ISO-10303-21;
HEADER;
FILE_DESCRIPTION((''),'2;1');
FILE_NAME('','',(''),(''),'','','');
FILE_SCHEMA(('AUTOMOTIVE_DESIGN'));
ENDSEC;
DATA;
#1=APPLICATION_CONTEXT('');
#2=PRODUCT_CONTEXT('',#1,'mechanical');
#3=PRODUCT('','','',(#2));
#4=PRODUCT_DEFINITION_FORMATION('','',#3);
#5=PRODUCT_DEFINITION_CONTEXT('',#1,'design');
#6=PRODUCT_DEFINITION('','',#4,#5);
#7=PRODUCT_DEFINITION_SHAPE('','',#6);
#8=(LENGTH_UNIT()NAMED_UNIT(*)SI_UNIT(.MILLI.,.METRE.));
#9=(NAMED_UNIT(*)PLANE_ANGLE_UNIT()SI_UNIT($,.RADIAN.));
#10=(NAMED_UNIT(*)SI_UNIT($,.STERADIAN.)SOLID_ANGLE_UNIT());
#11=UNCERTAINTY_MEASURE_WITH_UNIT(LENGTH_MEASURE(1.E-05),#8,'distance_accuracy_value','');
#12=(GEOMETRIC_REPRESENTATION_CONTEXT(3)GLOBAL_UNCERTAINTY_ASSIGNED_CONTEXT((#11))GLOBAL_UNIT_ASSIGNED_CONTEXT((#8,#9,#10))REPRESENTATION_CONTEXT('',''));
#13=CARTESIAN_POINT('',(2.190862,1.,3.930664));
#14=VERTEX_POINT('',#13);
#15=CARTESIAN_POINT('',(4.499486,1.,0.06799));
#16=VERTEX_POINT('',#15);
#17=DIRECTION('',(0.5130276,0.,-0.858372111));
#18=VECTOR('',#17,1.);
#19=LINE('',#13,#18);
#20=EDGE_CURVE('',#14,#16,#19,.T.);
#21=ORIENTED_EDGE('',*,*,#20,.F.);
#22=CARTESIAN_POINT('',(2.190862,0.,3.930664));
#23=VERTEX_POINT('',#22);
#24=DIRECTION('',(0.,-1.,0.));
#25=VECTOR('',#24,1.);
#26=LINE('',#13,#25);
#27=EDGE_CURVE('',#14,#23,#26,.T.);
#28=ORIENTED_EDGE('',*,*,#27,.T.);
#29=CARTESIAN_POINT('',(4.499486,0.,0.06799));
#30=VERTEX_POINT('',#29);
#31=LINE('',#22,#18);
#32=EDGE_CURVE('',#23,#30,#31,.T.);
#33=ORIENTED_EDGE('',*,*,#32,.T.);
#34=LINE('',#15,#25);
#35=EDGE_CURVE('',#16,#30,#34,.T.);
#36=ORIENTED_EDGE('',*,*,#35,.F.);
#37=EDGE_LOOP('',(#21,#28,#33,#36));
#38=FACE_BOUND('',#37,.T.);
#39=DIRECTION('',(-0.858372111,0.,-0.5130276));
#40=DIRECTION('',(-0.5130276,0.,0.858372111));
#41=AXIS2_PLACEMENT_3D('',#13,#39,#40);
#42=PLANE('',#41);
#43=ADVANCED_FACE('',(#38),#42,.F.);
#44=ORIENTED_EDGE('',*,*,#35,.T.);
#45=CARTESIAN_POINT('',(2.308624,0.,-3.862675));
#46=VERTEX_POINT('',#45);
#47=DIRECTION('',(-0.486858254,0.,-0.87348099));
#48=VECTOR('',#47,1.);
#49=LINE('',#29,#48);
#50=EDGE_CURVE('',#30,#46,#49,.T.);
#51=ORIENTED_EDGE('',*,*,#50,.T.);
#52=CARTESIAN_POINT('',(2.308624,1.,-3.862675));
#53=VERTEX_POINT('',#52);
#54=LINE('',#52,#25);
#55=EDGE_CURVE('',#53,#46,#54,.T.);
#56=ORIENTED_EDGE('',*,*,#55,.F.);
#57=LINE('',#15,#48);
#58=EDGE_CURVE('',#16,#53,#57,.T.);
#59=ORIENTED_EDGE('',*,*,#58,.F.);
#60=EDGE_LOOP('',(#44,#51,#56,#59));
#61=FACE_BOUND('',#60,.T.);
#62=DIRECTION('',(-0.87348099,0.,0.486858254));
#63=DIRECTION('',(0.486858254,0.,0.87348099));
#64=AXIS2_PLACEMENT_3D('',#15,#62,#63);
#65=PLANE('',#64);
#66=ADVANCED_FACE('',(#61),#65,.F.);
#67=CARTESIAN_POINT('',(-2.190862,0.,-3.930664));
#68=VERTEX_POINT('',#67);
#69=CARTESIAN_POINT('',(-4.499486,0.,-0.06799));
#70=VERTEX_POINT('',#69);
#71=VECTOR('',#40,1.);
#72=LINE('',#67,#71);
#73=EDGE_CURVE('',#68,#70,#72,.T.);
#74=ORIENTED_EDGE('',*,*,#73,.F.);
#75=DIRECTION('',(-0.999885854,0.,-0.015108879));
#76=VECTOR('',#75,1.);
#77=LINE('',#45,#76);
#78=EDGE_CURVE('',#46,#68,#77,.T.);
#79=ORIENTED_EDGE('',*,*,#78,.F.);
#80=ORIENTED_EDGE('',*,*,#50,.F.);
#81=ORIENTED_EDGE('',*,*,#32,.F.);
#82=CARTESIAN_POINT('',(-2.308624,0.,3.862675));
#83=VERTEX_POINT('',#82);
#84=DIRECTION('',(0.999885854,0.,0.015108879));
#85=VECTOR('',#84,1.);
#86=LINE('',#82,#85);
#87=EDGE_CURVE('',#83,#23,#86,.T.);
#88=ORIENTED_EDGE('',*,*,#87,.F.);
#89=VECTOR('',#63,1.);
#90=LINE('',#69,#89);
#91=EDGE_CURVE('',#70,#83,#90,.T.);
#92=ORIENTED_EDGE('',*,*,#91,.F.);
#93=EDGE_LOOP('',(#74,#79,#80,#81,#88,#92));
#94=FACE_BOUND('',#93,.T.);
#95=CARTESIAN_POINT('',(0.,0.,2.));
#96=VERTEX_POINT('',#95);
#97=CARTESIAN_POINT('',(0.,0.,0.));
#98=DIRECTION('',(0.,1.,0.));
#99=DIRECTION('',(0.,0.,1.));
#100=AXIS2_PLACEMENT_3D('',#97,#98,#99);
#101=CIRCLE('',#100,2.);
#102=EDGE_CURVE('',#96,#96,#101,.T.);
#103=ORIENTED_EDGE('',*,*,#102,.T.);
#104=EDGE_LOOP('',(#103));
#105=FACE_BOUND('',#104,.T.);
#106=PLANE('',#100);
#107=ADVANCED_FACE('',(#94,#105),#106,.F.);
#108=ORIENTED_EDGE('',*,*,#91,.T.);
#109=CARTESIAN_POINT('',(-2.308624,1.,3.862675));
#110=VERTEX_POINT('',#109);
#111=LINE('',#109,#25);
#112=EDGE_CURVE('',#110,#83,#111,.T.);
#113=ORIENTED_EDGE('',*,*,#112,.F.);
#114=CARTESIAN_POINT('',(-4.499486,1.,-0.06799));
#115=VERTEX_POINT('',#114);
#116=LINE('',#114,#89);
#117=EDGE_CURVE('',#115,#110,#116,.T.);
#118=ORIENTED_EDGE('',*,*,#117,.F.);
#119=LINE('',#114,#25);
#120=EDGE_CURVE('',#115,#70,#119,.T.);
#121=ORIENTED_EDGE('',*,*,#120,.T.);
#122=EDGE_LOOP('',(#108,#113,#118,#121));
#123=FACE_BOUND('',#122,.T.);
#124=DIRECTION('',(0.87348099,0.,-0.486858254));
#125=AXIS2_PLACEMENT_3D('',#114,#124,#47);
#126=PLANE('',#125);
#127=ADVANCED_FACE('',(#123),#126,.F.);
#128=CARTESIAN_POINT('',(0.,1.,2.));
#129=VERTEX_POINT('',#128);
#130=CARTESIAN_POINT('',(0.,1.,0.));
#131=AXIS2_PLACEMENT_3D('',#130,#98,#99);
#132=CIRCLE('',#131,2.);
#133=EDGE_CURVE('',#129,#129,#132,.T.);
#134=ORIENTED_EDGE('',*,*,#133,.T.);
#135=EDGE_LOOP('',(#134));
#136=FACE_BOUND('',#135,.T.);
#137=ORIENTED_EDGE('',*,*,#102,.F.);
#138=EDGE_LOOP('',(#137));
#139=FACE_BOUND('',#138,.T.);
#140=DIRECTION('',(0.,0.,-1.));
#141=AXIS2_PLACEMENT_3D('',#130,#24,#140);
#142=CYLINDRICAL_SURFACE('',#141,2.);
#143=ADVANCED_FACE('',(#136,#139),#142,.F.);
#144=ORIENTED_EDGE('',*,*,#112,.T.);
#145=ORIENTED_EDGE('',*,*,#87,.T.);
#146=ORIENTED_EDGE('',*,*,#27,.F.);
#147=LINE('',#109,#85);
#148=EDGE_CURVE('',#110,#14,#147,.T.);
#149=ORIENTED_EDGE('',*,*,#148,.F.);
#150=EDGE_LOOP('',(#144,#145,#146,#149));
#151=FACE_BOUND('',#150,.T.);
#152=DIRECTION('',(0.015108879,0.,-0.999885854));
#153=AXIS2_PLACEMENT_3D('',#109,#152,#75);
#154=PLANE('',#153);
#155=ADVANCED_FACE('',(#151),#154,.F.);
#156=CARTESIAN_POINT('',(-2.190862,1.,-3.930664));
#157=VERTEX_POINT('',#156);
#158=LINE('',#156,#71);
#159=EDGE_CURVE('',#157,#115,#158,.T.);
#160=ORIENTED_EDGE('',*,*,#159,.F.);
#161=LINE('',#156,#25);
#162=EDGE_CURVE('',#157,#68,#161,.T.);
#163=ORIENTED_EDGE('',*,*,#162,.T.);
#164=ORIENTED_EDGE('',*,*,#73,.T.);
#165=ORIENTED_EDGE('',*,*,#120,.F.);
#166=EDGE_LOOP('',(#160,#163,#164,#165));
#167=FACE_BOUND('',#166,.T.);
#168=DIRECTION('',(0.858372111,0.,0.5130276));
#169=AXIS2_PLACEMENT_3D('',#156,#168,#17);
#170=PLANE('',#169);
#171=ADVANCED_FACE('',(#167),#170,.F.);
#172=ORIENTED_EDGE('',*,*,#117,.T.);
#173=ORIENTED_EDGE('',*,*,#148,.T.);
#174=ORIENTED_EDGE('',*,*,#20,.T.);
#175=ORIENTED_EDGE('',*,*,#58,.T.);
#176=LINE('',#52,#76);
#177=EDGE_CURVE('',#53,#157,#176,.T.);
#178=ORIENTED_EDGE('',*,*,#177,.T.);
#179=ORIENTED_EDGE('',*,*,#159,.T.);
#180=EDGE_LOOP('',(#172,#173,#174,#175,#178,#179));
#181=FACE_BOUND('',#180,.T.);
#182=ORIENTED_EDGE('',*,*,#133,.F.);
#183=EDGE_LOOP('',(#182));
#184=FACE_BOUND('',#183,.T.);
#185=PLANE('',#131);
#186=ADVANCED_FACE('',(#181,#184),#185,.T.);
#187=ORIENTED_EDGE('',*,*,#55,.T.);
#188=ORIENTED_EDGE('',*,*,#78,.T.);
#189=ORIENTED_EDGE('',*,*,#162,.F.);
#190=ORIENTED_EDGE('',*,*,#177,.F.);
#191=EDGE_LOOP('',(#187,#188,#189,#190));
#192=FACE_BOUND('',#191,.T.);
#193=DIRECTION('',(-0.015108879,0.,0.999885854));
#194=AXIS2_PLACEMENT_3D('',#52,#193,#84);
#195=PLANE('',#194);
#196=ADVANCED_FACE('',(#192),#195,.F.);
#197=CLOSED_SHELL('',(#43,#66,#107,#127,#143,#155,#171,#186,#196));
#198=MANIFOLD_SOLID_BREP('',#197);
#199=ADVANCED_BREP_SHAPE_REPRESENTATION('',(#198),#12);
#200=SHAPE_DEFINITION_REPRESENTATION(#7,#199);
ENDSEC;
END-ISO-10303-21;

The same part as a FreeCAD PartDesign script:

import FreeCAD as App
import Part
import Sketcher
Q = App.Units.Quantity


def add_polygon(sketch, points):
    """Adds a closed chain of lines whose ends are joined by coincident constraints."""
    first, n = sketch.GeometryCount, len(points)
    for a, b in zip(points, points[1:] + points[:1]):
        sketch.addGeometry(Part.LineSegment(App.Vector(*a, 0), App.Vector(*b, 0)), False)
    for i in range(n):
        sketch.addConstraint(Sketcher.Constraint("Coincident", first + i, 2, first + (i + 1) % n, 1))

doc = App.newDocument("Part")
params = doc.addObject("Spreadsheet::Sheet", "Params")
for row, (alias, value) in enumerate([
    ("sketch1_diameter", "4 mm"),
    ("sketch1_length", "4.5 mm"),
    ("pad1_length", "1 mm"),
], start=1):
    params.set(f"A{row}", alias)
    params.set(f"B{row}", "=" + value)
    params.setAlias(f"B{row}", alias)

body = doc.addObject("PartDesign::Body", "Body")

# Sketch on XZ plane
sketch1 = doc.addObject("Sketcher::SketchObject", "Sketch")
body.addObject(sketch1)
sketch1.AttachmentSupport = (doc.XZ_Plane, [""])
sketch1.MapMode = "FlatFace"
add_polygon(sketch1, [(4.499486, 0.06799), (2.308624, -3.862675), (-2.190862, -3.930664), (-4.499486, -0.06799), (-2.308624, 3.862675), (2.190862, 3.930664)])  # lines 0-5
sketch1.addGeometry(Part.Circle(App.Vector(0, 0, 0), App.Vector(0, 0, 1), 2), False)  # 6
sketch1.addConstraint(Sketcher.Constraint("Coincident", 6, 3, -1, 1))
sketch1.addConstraint(Sketcher.Constraint("Symmetric", 0, 2, 3, 2, -1, 1))
sketch1.addConstraint(Sketcher.Constraint("Symmetric", 1, 2, 4, 2, -1, 1))
sketch1.addConstraint(Sketcher.Constraint("Symmetric", 2, 2, 5, 2, -1, 1))
sketch1.addConstraint(Sketcher.Constraint("Equal", 0, 1))
sketch1.addConstraint(Sketcher.Constraint("Equal", 1, 2))
sketch1.addConstraint(Sketcher.Constraint("Diameter", 6, Q("4 mm")))
sketch1.addConstraint(Sketcher.Constraint("Distance", 0, Q("4.5 mm")))
sketch1.addConstraint(Sketcher.Constraint("DistanceY", 2, 2, -1, 1, Q("0.06799 mm")))
sketch1.addConstraint(Sketcher.Constraint("DistanceY", 1, 2, 0, 2, Q("0.06799 mm")))
sketch1.addConstraint(Sketcher.Constraint("DistanceX", 2, 2, 0, 2, Q("6.808111 mm")))
sketch1.setExpression("Constraints[12]", "Params.sketch1_diameter")
sketch1.setExpression("Constraints[13]", "Params.sketch1_length")
pad1 = doc.addObject("PartDesign::Pad", "Pad")
body.addObject(pad1)
pad1.Profile = sketch1
pad1.setExpression("Length", "Params.pad1_length")
pad1.Reversed = True

doc.recompute()
